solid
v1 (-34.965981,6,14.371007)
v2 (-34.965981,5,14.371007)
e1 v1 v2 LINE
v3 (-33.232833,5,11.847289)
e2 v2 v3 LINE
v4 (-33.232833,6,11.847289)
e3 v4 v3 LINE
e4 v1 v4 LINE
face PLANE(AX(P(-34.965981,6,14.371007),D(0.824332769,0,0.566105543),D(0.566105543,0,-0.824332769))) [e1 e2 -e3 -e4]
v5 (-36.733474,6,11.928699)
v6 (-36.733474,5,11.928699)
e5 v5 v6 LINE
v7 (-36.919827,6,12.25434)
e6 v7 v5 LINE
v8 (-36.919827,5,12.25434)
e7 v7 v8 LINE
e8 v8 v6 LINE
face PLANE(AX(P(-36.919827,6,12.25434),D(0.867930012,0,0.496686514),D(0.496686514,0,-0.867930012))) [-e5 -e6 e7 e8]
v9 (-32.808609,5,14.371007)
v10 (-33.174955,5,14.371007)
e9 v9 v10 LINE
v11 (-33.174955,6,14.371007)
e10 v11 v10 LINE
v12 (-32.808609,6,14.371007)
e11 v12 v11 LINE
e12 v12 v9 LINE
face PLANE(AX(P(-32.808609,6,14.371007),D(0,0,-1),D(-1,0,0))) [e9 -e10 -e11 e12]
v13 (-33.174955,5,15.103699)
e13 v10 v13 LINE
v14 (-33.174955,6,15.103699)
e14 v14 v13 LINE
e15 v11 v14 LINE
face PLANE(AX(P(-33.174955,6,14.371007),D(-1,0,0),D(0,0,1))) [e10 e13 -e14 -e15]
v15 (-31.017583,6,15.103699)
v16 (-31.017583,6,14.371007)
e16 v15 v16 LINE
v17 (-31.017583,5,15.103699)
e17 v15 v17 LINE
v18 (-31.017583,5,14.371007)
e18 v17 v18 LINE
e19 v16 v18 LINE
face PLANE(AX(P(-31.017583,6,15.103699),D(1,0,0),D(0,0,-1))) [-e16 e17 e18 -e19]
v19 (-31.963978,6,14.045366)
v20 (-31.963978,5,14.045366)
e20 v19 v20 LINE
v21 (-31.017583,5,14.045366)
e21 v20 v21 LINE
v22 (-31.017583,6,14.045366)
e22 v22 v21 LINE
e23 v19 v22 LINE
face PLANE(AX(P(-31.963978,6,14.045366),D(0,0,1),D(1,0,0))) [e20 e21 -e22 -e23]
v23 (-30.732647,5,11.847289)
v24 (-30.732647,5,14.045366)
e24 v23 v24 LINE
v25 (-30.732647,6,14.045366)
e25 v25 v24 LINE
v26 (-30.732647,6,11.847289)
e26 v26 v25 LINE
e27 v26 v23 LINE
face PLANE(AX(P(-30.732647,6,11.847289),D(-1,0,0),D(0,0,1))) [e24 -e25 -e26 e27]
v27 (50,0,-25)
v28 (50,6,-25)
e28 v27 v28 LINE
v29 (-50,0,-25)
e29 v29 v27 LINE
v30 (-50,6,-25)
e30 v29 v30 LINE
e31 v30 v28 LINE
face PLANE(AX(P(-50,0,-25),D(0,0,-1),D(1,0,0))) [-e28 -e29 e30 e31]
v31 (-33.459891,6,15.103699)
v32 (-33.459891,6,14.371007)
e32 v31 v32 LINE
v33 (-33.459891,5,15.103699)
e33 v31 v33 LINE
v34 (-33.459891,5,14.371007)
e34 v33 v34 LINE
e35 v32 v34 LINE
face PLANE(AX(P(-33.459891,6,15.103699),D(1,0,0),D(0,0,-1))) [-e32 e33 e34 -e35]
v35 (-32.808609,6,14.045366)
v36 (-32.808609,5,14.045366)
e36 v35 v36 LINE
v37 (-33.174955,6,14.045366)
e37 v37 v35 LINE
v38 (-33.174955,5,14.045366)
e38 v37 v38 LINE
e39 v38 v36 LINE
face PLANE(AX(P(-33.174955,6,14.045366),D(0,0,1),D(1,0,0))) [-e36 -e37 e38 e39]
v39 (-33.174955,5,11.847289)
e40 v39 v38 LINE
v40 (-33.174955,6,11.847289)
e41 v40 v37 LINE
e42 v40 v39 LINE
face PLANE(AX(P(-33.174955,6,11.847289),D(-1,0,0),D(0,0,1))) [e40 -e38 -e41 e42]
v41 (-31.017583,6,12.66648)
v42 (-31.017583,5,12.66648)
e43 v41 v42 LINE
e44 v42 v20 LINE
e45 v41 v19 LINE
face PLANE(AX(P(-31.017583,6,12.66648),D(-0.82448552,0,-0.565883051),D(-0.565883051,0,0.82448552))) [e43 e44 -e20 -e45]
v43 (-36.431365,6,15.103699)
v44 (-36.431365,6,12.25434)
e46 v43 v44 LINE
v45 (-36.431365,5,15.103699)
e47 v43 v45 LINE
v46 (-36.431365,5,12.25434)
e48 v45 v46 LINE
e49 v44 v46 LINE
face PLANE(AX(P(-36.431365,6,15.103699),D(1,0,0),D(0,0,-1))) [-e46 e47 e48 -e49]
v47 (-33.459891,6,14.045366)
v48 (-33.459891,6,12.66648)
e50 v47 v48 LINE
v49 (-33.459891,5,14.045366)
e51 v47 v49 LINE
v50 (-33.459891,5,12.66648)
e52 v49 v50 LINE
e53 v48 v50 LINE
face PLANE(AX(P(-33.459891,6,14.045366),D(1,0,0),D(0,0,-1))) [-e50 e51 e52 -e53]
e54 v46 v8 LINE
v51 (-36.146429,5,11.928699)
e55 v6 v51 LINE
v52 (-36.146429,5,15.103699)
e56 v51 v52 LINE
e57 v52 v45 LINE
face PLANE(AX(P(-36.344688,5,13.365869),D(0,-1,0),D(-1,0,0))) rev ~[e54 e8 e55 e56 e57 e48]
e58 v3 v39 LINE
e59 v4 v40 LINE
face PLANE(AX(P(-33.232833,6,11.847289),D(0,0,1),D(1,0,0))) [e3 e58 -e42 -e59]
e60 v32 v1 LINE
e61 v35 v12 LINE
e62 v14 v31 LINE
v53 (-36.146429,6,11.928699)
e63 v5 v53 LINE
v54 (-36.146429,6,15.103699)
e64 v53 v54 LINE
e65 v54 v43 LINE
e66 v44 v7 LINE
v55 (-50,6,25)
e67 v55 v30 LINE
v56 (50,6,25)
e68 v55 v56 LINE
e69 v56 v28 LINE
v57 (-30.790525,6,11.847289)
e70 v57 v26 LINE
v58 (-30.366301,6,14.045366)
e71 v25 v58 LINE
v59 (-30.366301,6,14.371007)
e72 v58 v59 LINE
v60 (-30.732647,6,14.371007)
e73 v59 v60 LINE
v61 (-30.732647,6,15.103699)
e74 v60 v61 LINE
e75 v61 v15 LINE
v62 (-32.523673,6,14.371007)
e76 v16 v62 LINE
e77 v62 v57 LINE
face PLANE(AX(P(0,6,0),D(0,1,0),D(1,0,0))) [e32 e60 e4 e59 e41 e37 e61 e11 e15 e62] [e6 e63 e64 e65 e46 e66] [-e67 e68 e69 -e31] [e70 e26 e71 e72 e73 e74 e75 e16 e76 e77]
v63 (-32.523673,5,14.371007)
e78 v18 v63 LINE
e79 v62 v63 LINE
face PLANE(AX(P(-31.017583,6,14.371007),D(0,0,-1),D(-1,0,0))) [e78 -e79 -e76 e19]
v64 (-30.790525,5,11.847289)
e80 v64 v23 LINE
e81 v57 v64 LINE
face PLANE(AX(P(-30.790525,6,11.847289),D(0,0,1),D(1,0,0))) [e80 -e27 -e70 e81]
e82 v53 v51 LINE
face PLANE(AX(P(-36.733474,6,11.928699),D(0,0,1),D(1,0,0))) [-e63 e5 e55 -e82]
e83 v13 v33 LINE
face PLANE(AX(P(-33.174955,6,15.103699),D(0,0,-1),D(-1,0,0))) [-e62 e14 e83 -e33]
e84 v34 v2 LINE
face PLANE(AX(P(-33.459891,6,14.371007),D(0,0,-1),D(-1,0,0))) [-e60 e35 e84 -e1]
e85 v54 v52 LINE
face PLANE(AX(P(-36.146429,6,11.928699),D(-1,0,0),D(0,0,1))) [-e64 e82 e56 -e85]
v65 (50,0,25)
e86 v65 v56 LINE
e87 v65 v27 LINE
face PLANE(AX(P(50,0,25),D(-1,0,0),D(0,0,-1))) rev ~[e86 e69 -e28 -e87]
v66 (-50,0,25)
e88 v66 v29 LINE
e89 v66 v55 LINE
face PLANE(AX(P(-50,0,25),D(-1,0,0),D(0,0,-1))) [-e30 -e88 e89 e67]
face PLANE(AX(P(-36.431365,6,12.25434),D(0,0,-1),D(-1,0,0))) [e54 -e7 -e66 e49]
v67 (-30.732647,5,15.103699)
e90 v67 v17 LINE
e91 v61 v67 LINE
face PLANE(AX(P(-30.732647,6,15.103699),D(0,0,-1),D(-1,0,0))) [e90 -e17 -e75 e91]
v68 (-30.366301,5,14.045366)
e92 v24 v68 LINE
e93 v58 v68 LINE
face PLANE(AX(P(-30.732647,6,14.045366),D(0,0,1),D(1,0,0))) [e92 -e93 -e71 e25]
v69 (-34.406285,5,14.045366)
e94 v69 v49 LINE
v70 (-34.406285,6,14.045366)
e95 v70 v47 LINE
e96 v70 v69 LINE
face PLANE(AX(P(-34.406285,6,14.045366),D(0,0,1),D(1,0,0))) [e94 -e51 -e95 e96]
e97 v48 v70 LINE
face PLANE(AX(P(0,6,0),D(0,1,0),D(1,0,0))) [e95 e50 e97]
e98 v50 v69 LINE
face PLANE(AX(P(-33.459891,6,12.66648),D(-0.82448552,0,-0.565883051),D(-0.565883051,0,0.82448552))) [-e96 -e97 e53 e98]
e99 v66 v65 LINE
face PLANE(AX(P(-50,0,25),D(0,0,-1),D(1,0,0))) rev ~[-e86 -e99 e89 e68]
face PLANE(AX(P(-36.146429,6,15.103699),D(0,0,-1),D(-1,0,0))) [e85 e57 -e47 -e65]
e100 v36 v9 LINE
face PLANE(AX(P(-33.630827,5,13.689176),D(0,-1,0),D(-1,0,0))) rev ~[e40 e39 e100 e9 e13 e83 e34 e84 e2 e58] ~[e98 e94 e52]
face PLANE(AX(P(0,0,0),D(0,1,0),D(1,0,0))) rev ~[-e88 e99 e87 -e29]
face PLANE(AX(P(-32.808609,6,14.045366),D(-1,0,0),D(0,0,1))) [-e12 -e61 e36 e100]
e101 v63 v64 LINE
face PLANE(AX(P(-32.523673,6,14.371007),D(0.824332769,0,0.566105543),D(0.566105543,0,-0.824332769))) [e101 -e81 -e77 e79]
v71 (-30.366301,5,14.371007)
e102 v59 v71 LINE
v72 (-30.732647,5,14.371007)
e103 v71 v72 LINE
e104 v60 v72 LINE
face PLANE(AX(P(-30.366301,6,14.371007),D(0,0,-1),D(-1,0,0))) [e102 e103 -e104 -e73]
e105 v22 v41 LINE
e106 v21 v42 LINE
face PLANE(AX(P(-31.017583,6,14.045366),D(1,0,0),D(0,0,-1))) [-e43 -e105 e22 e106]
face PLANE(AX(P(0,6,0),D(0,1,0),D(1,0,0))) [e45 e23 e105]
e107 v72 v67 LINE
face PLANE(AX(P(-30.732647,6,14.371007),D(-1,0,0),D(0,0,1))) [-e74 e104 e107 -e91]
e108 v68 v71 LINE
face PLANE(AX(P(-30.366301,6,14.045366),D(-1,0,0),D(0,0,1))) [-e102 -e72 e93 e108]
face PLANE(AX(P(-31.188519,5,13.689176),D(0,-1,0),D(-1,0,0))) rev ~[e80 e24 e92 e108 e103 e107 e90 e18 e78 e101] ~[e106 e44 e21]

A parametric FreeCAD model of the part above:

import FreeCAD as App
import Part
import Sketcher
Q = App.Units.Quantity


def add_polygon(sketch, points):
    """Adds a closed chain of lines whose ends are joined by coincident constraints."""
    first, n = sketch.GeometryCount, len(points)
    for a, b in zip(points, points[1:] + points[:1]):
        sketch.addGeometry(Part.LineSegment(App.Vector(*a, 0), App.Vector(*b, 0)), False)
    for i in range(n):
        sketch.addConstraint(Sketcher.Constraint("Coincident", first + i, 2, first + (i + 1) % n, 1))

doc = App.newDocument("Part")
params = doc.addObject("Spreadsheet::Sheet", "Params")
for row, (alias, value) in enumerate([
    ("sketch1_width", "100 mm"),
    ("sketch1_height", "50 mm"),
    ("pad1_length", "6 mm"),
    ("pocket1_length", "1 mm"),
], start=1):
    params.set(f"A{row}", alias)
    params.set(f"B{row}", "=" + value)
    params.setAlias(f"B{row}", alias)

body = doc.addObject("PartDesign::Body", "Body")

# Sketch on XZ plane
sketch1 = body.newObject("Sketcher::SketchObject", "Sketch")
sketch1.AttachmentSupport = (doc.getObject("XZ_Plane"), [""])
sketch1.MapMode = "FlatFace"
add_polygon(sketch1, [(-50, -25), (-50, 25), (50, 25), (50, -25)])  # lines 0-3
sketch1.addConstraint(Sketcher.Constraint("Vertical", 0))
sketch1.addConstraint(Sketcher.Constraint("Horizontal", 1))
sketch1.addConstraint(Sketcher.Constraint("Vertical", 2))
sketch1.addConstraint(Sketcher.Constraint("Horizontal", 3))
sketch1.addConstraint(Sketcher.Constraint("Symmetric", 0, 2, 2, 2, -1, 1))
sketch1.addConstraint(Sketcher.Constraint("DistanceX", 1, 1, 1, 2, Q("100 mm")))
sketch1.addConstraint(Sketcher.Constraint("DistanceY", 0, 1, 0, 2, Q("50 mm")))
sketch1.setExpression("Constraints[9]", "Params.sketch1_width")
sketch1.setExpression("Constraints[10]", "Params.sketch1_height")
pad1 = body.newObject("PartDesign::Pad", "Pad")
pad1.Profile = sketch1
pad1.setExpression("Length", "Params.pad1_length")
pad1.Reversed = True

# Sketch on XZ plane
sketch2 = body.newObject("Sketcher::SketchObject", "Sketch001")
sketch2.AttachmentSupport = (doc.getObject("XZ_Plane"), [""])
sketch2.MapMode = "FlatFace"
sketch2.AttachmentOffset = App.Placement(App.Vector(0, 0, -6), App.Rotation())
add_polygon(sketch2, [(-36.15, 11.93), (-36.73, 11.93), (-36.92, 12.25), (-36.43, 12.25), (-36.43, 15.1), (-36.15, 15.1)])  # lines 0-5
add_polygon(sketch2, [(-33.17, 11.85), (-33.23, 11.85), (-34.97, 14.37), (-33.46, 14.37), (-33.46, 15.1), (-33.17, 15.1), (-33.17, 14.37), (-32.81, 14.37), (-32.81, 14.05), (-33.17, 14.05)])  # lines 6-15
add_polygon(sketch2, [(-33.46, 14.05), (-34.41, 14.05), (-33.46, 12.67)])  # lines 16-18
add_polygon(sketch2, [(-30.73, 11.85), (-30.79, 11.85), (-32.52, 14.37), (-31.02, 14.37), (-31.02, 15.1), (-30.73, 15.1), (-30.73, 14.37), (-30.37, 14.37), (-30.37, 14.05), (-30.73, 14.05)])  # lines 19-28
add_polygon(sketch2, [(-31.02, 14.05), (-31.96, 14.05), (-31.02, 12.67)])  # lines 29-31
sketch2.addConstraint(Sketcher.Constraint("Horizontal", 0))
sketch2.addConstraint(Sketcher.Constraint("Horizontal", 2))
sketch2.addConstraint(Sketcher.Constraint("Vertical", 3))
sketch2.addConstraint(Sketcher.Constraint("Horizontal", 4))
sketch2.addConstraint(Sketcher.Constraint("Vertical", 5))
sketch2.addConstraint(Sketcher.Constraint("Horizontal", 6))
sketch2.addConstraint(Sketcher.Constraint("Horizontal", 8))
sketch2.addConstraint(Sketcher.Constraint("Vertical", 9))
sketch2.addConstraint(Sketcher.Constraint("Horizontal", 10))
sketch2.addConstraint(Sketcher.Constraint("Vertical", 11))
sketch2.addConstraint(Sketcher.Constraint("Horizontal", 12))
sketch2.addConstraint(Sketcher.Constraint("Vertical", 13))
sketch2.addConstraint(Sketcher.Constraint("Horizontal", 14))
sketch2.addConstraint(Sketcher.Constraint("Vertical", 15))
sketch2.addConstraint(Sketcher.Constraint("Horizontal", 16))
sketch2.addConstraint(Sketcher.Constraint("Vertical", 18))
sketch2.addConstraint(Sketcher.Constraint("Horizontal", 19))
sketch2.addConstraint(Sketcher.Constraint("Horizontal", 21))
sketch2.addConstraint(Sketcher.Constraint("Vertical", 22))
sketch2.addConstraint(Sketcher.Constraint("Horizontal", 23))
sketch2.addConstraint(Sketcher.Constraint("Vertical", 24))
sketch2.addConstraint(Sketcher.Constraint("Horizontal", 25))
sketch2.addConstraint(Sketcher.Constraint("Vertical", 26))
sketch2.addConstraint(Sketcher.Constraint("Horizontal", 27))
sketch2.addConstraint(Sketcher.Constraint("Vertical", 28))
sketch2.addConstraint(Sketcher.Constraint("Horizontal", 29))
sketch2.addConstraint(Sketcher.Constraint("Vertical", 31))
sketch2.addConstraint(Sketcher.Constraint("Parallel", 7, 20))
sketch2.addConstraint(Sketcher.Constraint("Parallel", 17, 30))
sketch2.addConstraint(Sketcher.Constraint("Horizontal", 4, 2, 9, 2))
sketch2.addConstraint(Sketcher.Constraint("Horizontal", 8, 2, 11, 2))
sketch2.addConstraint(Sketcher.Constraint("Horizontal", 14, 2, 16, 2))
sketch2.addConstraint(Sketcher.Constraint("Horizontal", 15, 2, 19, 2))
sketch2.addConstraint(Sketcher.Constraint("Horizontal", 12, 2, 20, 2))
sketch2.addConstraint(Sketcher.Constraint("Horizontal", 10, 2, 22, 2))
sketch2.addConstraint(Sketcher.Constraint("Horizontal", 21, 2, 24, 2))
sketch2.addConstraint(Sketcher.Constraint("Horizontal", 18, 2, 26, 2))
sketch2.addConstraint(Sketcher.Constraint("Horizontal", 27, 2, 29, 2))
sketch2.addConstraint(Sketcher.Constraint("Horizontal", 17, 2, 30, 2))
sketch2.addConstraint(Sketcher.Constraint("Vertical", 11, 2, 14, 2))
sketch2.addConstraint(Sketcher.Constraint("Vertical", 9, 2, 17, 2))
sketch2.addConstraint(Sketcher.Constraint("Vertical", 24, 2, 27, 2))
sketch2.addConstraint(Sketcher.Constraint("Vertical", 22, 2, 30, 2))
sketch2.addConstraint(Sketcher.Constraint("Equal", 4, 10))
sketch2.addConstraint(Sketcher.Constraint("Equal", 6, 19))
sketch2.addConstraint(Sketcher.Constraint("Equal", 8, 21))
sketch2.addConstraint(Sketcher.Constraint("Equal", 14, 25))
sketch2.addConstraint(Sketcher.Constraint("DistanceY", 5, 2, 5, 1, Q("3.175 mm")))
sketch2.addConstraint(Sketcher.Constraint("DistanceX", 2, 1, 2, 2, Q("0.488462 mm")))
sketch2.addConstraint(Sketcher.Constraint("DistanceX", 8, 1, 8, 2, Q("1.50609 mm")))
sketch2.addConstraint(Sketcher.Constraint("DistanceY", 3, 1, 3, 2, Q("2.849359 mm")))
sketch2.addConstraint(Sketcher.Constraint("DistanceY", 13, 2, 13, 1, Q("0.325641 mm")))
sketch2.addConstraint(Sketcher.Constraint("DistanceY", -1, 1, 0, 2, Q("11.928699 mm")))
sketch2.addConstraint(Sketcher.Constraint("DistanceX", 25, 2, -1, 1, Q("30.366301 mm")))
sketch2.addConstraint(Sketcher.Constraint("Distance", 7, Q("3.061528 mm")))
sketch2.addConstraint(Sketcher.Constraint("Distance", 17, Q("1.67242 mm")))
sketch2.addConstraint(Sketcher.Constraint("DistanceX", 0, 2, 0, 1, Q("0.587044 mm")))
sketch2.addConstraint(Sketcher.Constraint("DistanceX", 4, 1, 4, 2, Q("0.284936 mm")))
sketch2.addConstraint(Sketcher.Constraint("DistanceX", 6, 2, 6, 1, Q("0.057878 mm")))
sketch2.addConstraint(Sketcher.Constraint("DistanceX", 12, 1, 12, 2, Q("0.366346 mm")))
sketch2.addConstraint(Sketcher.Constraint("DistanceX", 16, 2, 16, 1, Q("0.946394 mm")))
sketch2.addConstraint(Sketcher.Constraint("DistanceY", 9, 1, 9, 2, Q("0.732692 mm")))
sketch2.addConstraint(Sketcher.Constraint("DistanceX", 4, 2, -1, 1, Q("36.146429 mm")))
sketch2.addConstraint(Sketcher.Constraint("DistanceX", 7, 2, -1, 1, Q("34.965981 mm")))
pocket1 = body.newObject("PartDesign::Pocket", "Pocket")
pocket1.Profile = sketch2
pocket1.setExpression("Length", "Params.pocket1_length")
pocket1.Reversed = True

doc.recompute()
